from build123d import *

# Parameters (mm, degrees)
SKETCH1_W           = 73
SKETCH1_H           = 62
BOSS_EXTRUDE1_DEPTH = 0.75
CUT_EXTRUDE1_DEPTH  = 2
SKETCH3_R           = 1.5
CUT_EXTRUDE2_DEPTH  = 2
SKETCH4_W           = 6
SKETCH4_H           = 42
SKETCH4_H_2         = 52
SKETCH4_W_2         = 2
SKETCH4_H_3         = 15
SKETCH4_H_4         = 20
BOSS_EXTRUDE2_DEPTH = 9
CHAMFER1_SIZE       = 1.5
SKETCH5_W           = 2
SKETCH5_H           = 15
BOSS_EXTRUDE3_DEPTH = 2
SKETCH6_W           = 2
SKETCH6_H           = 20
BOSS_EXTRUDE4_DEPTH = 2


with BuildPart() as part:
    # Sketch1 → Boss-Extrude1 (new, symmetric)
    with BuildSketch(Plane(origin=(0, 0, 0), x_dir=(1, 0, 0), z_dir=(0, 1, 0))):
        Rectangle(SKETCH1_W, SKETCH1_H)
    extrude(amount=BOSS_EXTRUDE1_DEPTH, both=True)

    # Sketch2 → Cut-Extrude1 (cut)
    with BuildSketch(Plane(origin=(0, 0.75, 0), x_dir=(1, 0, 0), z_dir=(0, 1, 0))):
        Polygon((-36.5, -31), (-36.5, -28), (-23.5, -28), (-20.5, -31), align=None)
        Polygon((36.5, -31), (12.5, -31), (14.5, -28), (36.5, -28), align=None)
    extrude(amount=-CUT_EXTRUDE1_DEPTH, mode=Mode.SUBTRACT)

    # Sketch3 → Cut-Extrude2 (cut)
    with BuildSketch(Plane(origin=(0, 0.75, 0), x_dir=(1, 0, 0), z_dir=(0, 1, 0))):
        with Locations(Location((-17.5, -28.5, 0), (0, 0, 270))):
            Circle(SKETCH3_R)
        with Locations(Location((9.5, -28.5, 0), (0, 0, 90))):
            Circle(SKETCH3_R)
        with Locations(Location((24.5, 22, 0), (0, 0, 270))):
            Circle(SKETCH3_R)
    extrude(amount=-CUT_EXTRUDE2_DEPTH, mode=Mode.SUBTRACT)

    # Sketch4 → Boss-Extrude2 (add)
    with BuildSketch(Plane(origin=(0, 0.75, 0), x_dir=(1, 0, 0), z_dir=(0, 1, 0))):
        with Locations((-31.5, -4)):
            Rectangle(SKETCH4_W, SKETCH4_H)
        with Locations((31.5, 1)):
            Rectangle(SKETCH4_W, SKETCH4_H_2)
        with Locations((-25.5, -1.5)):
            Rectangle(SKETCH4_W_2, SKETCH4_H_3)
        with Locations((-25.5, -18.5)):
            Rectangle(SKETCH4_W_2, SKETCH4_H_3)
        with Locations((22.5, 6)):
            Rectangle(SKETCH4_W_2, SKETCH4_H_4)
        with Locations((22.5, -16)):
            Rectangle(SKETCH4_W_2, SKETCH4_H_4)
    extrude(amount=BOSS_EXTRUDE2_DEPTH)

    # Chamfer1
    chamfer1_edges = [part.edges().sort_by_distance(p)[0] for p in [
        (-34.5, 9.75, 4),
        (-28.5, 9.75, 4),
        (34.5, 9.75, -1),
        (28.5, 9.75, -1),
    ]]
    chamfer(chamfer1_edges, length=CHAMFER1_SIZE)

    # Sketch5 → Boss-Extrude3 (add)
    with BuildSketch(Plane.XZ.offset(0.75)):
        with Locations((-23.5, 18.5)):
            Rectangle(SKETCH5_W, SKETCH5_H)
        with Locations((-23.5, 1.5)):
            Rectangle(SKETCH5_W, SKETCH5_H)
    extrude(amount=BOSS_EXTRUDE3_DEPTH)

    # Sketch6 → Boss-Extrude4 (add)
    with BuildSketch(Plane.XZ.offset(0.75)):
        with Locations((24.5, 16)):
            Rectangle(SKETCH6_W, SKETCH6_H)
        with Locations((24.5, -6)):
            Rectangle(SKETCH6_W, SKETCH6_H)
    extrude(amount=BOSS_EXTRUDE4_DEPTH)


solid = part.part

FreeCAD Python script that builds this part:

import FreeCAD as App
import Part
import Sketcher
from FreeCAD import Vector


def edges_at(feature, points):
    """Names of the edges that pass closest to the given points."""
    edges = feature.Shape.Edges
    near = lambda p: min(range(len(edges)), key=lambda i: edges[i].distToShape(Part.Vertex(*p))[0])
    return sorted({f"Edge{near(p) + 1}" for p in points})

doc = App.newDocument("Part")
body = doc.addObject("PartDesign::Body", "Body")

sketch1 = body.newObject("Sketcher::SketchObject", "Sketch")
sketch1.AttachmentSupport = (doc.getObject("XZ_Plane"), [""])
sketch1.MapMode = "FlatFace"
sketch1.addGeometry([
    Part.LineSegment(Vector(-36.5, -31, 0), Vector(-36.5, 31, 0)),
    Part.LineSegment(Vector(-36.5, 31, 0), Vector(36.5, 31, 0)),
    Part.LineSegment(Vector(36.5, 31, 0), Vector(36.5, -31, 0)),
    Part.LineSegment(Vector(36.5, -31, 0), Vector(-36.5, -31, 0)),
], False)
sketch1.addConstraint([
    Sketcher.Constraint("Coincident", 0, 2, 1, 1),
    Sketcher.Constraint("Coincident", 1, 2, 2, 1),
    Sketcher.Constraint("Coincident", 2, 2, 3, 1),
    Sketcher.Constraint("Coincident", 3, 2, 0, 1),
    Sketcher.Constraint("Vertical", 0),
    Sketcher.Constraint("Horizontal", 1),
    Sketcher.Constraint("Vertical", 2),
    Sketcher.Constraint("Horizontal", 3),
    Sketcher.Constraint("Symmetric", 0, 2, 2, 2, -1, 1),
    Sketcher.Constraint("DistanceX", 1, 1, 1, 2, 73.0),
    Sketcher.Constraint("DistanceY", 0, 1, 0, 2, 62.0),
])
pad1 = body.newObject("PartDesign::Pad", "Pad")
pad1.Profile = sketch1
pad1.Length = 1.5
pad1.Midplane = True

sketch2 = body.newObject("Sketcher::SketchObject", "Sketch001")
sketch2.AttachmentSupport = (doc.getObject("XZ_Plane"), [""])
sketch2.MapMode = "FlatFace"
sketch2.AttachmentOffset = App.Placement(Vector(0, 0, -0.75), App.Rotation())
sketch2.addGeometry([
    Part.LineSegment(Vector(-36.5, 28, 0), Vector(-36.5, 31, 0)),
    Part.LineSegment(Vector(-36.5, 31, 0), Vector(-20.5, 31, 0)),
    Part.LineSegment(Vector(-20.5, 31, 0), Vector(-23.5, 28, 0)),
    Part.LineSegment(Vector(-23.5, 28, 0), Vector(-36.5, 28, 0)),
    Part.LineSegment(Vector(12.5, 31, 0), Vector(36.5, 31, 0)),
    Part.LineSegment(Vector(36.5, 31, 0), Vector(36.5, 28, 0)),
    Part.LineSegment(Vector(36.5, 28, 0), Vector(14.5, 28, 0)),
    Part.LineSegment(Vector(14.5, 28, 0), Vector(12.5, 31, 0)),
], False)
sketch2.addConstraint([
    Sketcher.Constraint("Coincident", 0, 2, 1, 1),
    Sketcher.Constraint("Coincident", 1, 2, 2, 1),
    Sketcher.Constraint("Coincident", 2, 2, 3, 1),
    Sketcher.Constraint("Coincident", 3, 2, 0, 1),
    Sketcher.Constraint("Coincident", 4, 2, 5, 1),
    Sketcher.Constraint("Coincident", 5, 2, 6, 1),
    Sketcher.Constraint("Coincident", 6, 2, 7, 1),
    Sketcher.Constraint("Coincident", 7, 2, 4, 1),
    Sketcher.Constraint("Vertical", 0),
    Sketcher.Constraint("Horizontal", 1),
    Sketcher.Constraint("Horizontal", 3),
    Sketcher.Constraint("Horizontal", 4),
    Sketcher.Constraint("Vertical", 5),
    Sketcher.Constraint("Horizontal", 6),
    Sketcher.Constraint("Symmetric", 0, 2, 4, 2, -2),
    Sketcher.Constraint("Horizontal", 3, 2, 5, 2),
    Sketcher.Constraint("DistanceX", 1, 1, 1, 2, 16.0),
    Sketcher.Constraint("DistanceX", 3, 2, 3, 1, 13.0),
    Sketcher.Constraint("DistanceX", 4, 1, 4, 2, 24.0),
    Sketcher.Constraint("DistanceX", 6, 2, 6, 1, 22.0),
    Sketcher.Constraint("DistanceY", 0, 1, 0, 2, 3.0),
    Sketcher.Constraint("DistanceY", -1, 1, 0, 2, 31.0),
    Sketcher.Constraint("DistanceX", 1, 2, 4, 2, 57.0),
])
pocket1 = body.newObject("PartDesign::Pocket", "Pocket")
pocket1.Profile = sketch2
pocket1.Length = 2
pocket1.Reversed = True

sketch3 = body.newObject("Sketcher::SketchObject", "Sketch002")
sketch3.AttachmentSupport = (doc.getObject("XZ_Plane"), [""])
sketch3.MapMode = "FlatFace"
sketch3.AttachmentOffset = App.Placement(Vector(0, 0, -0.75), App.Rotation())
sketch3.addGeometry([
    Part.Circle(Vector(-17.5, 28.5, 0), Vector(0, 0, 1), 1.5),
    Part.Circle(Vector(9.5, 28.5, 0), Vector(0, 0, 1), 1.5),
    Part.Circle(Vector(24.5, -22, 0), Vector(0, 0, 1), 1.5),
], False)
sketch3.addConstraint([
    Sketcher.Constraint("Equal", 0, 1),
    Sketcher.Constraint("Equal", 1, 2),
    Sketcher.Constraint("Horizontal", 0, 3, 1, 3),
    Sketcher.Constraint("Diameter", 0, 3.0),
    Sketcher.Constraint("DistanceY", 2, 3, -1, 1, 22.0),
    Sketcher.Constraint("DistanceX", 0, 3, 1, 3, 27.0),
    Sketcher.Constraint("DistanceX", 1, 3, 2, 3, 15.0),
    Sketcher.Constraint("DistanceX", 0, 3, -1, 1, 17.5),
    Sketcher.Constraint("DistanceY", -1, 1, 0, 3, 28.5),
])
pocket2 = body.newObject("PartDesign::Pocket", "Pocket001")
pocket2.Profile = sketch3
pocket2.Length = 2
pocket2.Reversed = True

sketch4 = body.newObject("Sketcher::SketchObject", "Sketch003")
sketch4.AttachmentSupport = (doc.getObject("XZ_Plane"), [""])
sketch4.MapMode = "FlatFace"
sketch4.AttachmentOffset = App.Placement(Vector(0, 0, -0.75), App.Rotation())
sketch4.addGeometry([
    Part.LineSegment(Vector(-34.5, -17, 0), Vector(-34.5, 25, 0)),
    Part.LineSegment(Vector(-34.5, 25, 0), Vector(-28.5, 25, 0)),
    Part.LineSegment(Vector(-28.5, 25, 0), Vector(-28.5, -17, 0)),
    Part.LineSegment(Vector(-28.5, -17, 0), Vector(-34.5, -17, 0)),
    Part.LineSegment(Vector(28.5, -27, 0), Vector(28.5, 25, 0)),
    Part.LineSegment(Vector(28.5, 25, 0), Vector(34.5, 25, 0)),
    Part.LineSegment(Vector(34.5, 25, 0), Vector(34.5, -27, 0)),
    Part.LineSegment(Vector(34.5, -27, 0), Vector(28.5, -27, 0)),
    Part.LineSegment(Vector(-26.5, -6, 0), Vector(-26.5, 9, 0)),
    Part.LineSegment(Vector(-26.5, 9, 0), Vector(-24.5, 9, 0)),
    Part.LineSegment(Vector(-24.5, 9, 0), Vector(-24.5, -6, 0)),
    Part.LineSegment(Vector(-24.5, -6, 0), Vector(-26.5, -6, 0)),
    Part.LineSegment(Vector(-26.5, 11, 0), Vector(-26.5, 26, 0)),
    Part.LineSegment(Vector(-26.5, 26, 0), Vector(-24.5, 26, 0)),
    Part.LineSegment(Vector(-24.5, 26, 0), Vector(-24.5, 11, 0)),
    Part.LineSegment(Vector(-24.5, 11, 0), Vector(-26.5, 11, 0)),
    Part.LineSegment(Vector(21.5, -16, 0), Vector(21.5, 4, 0)),
    Part.LineSegment(Vector(21.5, 4, 0), Vector(23.5, 4, 0)),
    Part.LineSegment(Vector(23.5, 4, 0), Vector(23.5, -16, 0)),
    Part.LineSegment(Vector(23.5, -16, 0), Vector(21.5, -16, 0)),
    Part.LineSegment(Vector(21.5, 6, 0), Vector(21.5, 26, 0)),
    Part.LineSegment(Vector(21.5, 26, 0), Vector(23.5, 26, 0)),
    Part.LineSegment(Vector(23.5, 26, 0), Vector(23.5, 6, 0)),
    Part.LineSegment(Vector(23.5, 6, 0), Vector(21.5, 6, 0)),
], False)
sketch4.addConstraint([
    Sketcher.Constraint("Coincident", 0, 2, 1, 1),
    Sketcher.Constraint("Coincident", 1, 2, 2, 1),
    Sketcher.Constraint("Coincident", 2, 2, 3, 1),
    Sketcher.Constraint("Coincident", 3, 2, 0, 1),
    Sketcher.Constraint("Coincident", 4, 2, 5, 1),
    Sketcher.Constraint("Coincident", 5, 2, 6, 1),
    Sketcher.Constraint("Coincident", 6, 2, 7, 1),
    Sketcher.Constraint("Coincident", 7, 2, 4, 1),
    Sketcher.Constraint("Coincident", 8, 2, 9, 1),
    Sketcher.Constraint("Coincident", 9, 2, 10, 1),
    Sketcher.Constraint("Coincident", 10, 2, 11, 1),
    Sketcher.Constraint("Coincident", 11, 2, 8, 1),
    Sketcher.Constraint("Coincident", 12, 2, 13, 1),
    Sketcher.Constraint("Coincident", 13, 2, 14, 1),
    Sketcher.Constraint("Coincident", 14, 2, 15, 1),
    Sketcher.Constraint("Coincident", 15, 2, 12, 1),
    Sketcher.Constraint("Coincident", 16, 2, 17, 1),
    Sketcher.Constraint("Coincident", 17, 2, 18, 1),
    Sketcher.Constraint("Coincident", 18, 2, 19, 1),
    Sketcher.Constraint("Coincident", 19, 2, 16, 1),
    Sketcher.Constraint("Coincident", 20, 2, 21, 1),
    Sketcher.Constraint("Coincident", 21, 2, 22, 1),
    Sketcher.Constraint("Coincident", 22, 2, 23, 1),
    Sketcher.Constraint("Coincident", 23, 2, 20, 1),
    Sketcher.Constraint("Vertical", 0),
    Sketcher.Constraint("Horizontal", 1),
    Sketcher.Constraint("Vertical", 2),
    Sketcher.Constraint("Horizontal", 3),
    Sketcher.Constraint("Vertical", 4),
    Sketcher.Constraint("Horizontal", 5),
    Sketcher.Constraint("Vertical", 6),
    Sketcher.Constraint("Horizontal", 7),
    Sketcher.Constraint("Vertical", 8),
    Sketcher.Constraint("Horizontal", 9),
    Sketcher.Constraint("Vertical", 10),
    Sketcher.Constraint("Horizontal", 11),
    Sketcher.Constraint("Vertical", 12),
    Sketcher.Constraint("Horizontal", 13),
    Sketcher.Constraint("Vertical", 14),
    Sketcher.Constraint("Horizontal", 15),
    Sketcher.Constraint("Vertical", 16),
    Sketcher.Constraint("Horizontal", 17),
    Sketcher.Constraint("Vertical", 18),
    Sketcher.Constraint("Horizontal", 19),
    Sketcher.Constraint("Vertical", 20),
    Sketcher.Constraint("Horizontal", 21),
    Sketcher.Constraint("Vertical", 22),
    Sketcher.Constraint("Horizontal", 23),
    Sketcher.Constraint("Symmetric", 1, 2, 4, 2, -2),
    Sketcher.Constraint("Horizontal", 13, 2, 20, 2),
    Sketcher.Constraint("Vertical", 11, 2, 12, 2),
    Sketcher.Constraint("Vertical", 10, 2, 13, 2),
    Sketcher.Constraint("Vertical", 19, 2, 20, 2),
    Sketcher.Constraint("Vertical", 18, 2, 21, 2),
    Sketcher.Constraint("Equal", 3, 5),
    Sketcher.Constraint("Equal", 15, 17),
    Sketcher.Constraint("Equal", 10, 12),
    Sketcher.Constraint("Equal", 18, 20),
    Sketcher.Constraint("DistanceX", 1, 1, 1, 2, 6.0),
    Sketcher.Constraint("DistanceX", 9, 1, 9, 2, 2.0),
    Sketcher.Constraint("DistanceY", 0, 1, 0, 2, 42.0),
    Sketcher.Constraint("DistanceY", 4, 1, 4, 2, 52.0),
    Sketcher.Constraint("DistanceY", 8, 1, 8, 2, 15.0),
    Sketcher.Constraint("DistanceY", 16, 1, 16, 2, 20.0),
    Sketcher.Constraint("DistanceY", -1, 1, 0, 2, 25.0),
    Sketcher.Constraint("DistanceY", -1, 1, 8, 2, 9.0),
    Sketcher.Constraint("DistanceY", -1, 1, 12, 2, 26.0),
    Sketcher.Constraint("DistanceY", -1, 1, 16, 2, 4.0),
    Sketcher.Constraint("DistanceX", 1, 2, 4, 2, 57.0),
    Sketcher.Constraint("DistanceX", 1, 2, 8, 2, 2.0),
    Sketcher.Constraint("DistanceX", 16, 2, 4, 2, 7.0),
])
pad2 = body.newObject("PartDesign::Pad", "Pad001")
pad2.Profile = sketch4
pad2.Length = 9
pad2.Reversed = True
doc.recompute()

chamfer = body.newObject("PartDesign::Chamfer", "Chamfer")
chamfer.Base = (pad2, edges_at(pad2, [
    (-34.5, 9.75, 4),
    (-28.5, 9.75, 4),
    (34.5, 9.75, -1),
    (28.5, 9.75, -1),
]))
chamfer.Size = 1.5

sketch5 = body.newObject("Sketcher::SketchObject", "Sketch004")
sketch5.AttachmentSupport = (doc.getObject("XZ_Plane"), [""])
sketch5.MapMode = "FlatFace"
sketch5.AttachmentOffset = App.Placement(Vector(0, 0, 0.75), App.Rotation())
sketch5.addGeometry([
    Part.LineSegment(Vector(-24.5, 26, 0), Vector(-24.5, 11, 0)),
    Part.LineSegment(Vector(-24.5, 11, 0), Vector(-22.5, 11, 0)),
    Part.LineSegment(Vector(-22.5, 11, 0), Vector(-22.5, 26, 0)),
    Part.LineSegment(Vector(-22.5, 26, 0), Vector(-24.5, 26, 0)),
    Part.LineSegment(Vector(-24.5, 9, 0), Vector(-24.5, -6, 0)),
    Part.LineSegment(Vector(-24.5, -6, 0), Vector(-22.5, -6, 0)),
    Part.LineSegment(Vector(-22.5, -6, 0), Vector(-22.5, 9, 0)),
    Part.LineSegment(Vector(-22.5, 9, 0), Vector(-24.5, 9, 0)),
], False)
sketch5.addConstraint([
    Sketcher.Constraint("Coincident", 0, 2, 1, 1),
    Sketcher.Constraint("Coincident", 1, 2, 2, 1),
    Sketcher.Constraint("Coincident", 2, 2, 3, 1),
    Sketcher.Constraint("Coincident", 3, 2, 0, 1),
    Sketcher.Constraint("Coincident", 4, 2, 5, 1),
    Sketcher.Constraint("Coincident", 5, 2, 6, 1),
    Sketcher.Constraint("Coincident", 6, 2, 7, 1),
    Sketcher.Constraint("Coincident", 7, 2, 4, 1),
    Sketcher.Constraint("Vertical", 0),
    Sketcher.Constraint("Horizontal", 1),
    Sketcher.Constraint("Vertical", 2),
    Sketcher.Constraint("Horizontal", 3),
    Sketcher.Constraint("Vertical", 4),
    Sketcher.Constraint("Horizontal", 5),
    Sketcher.Constraint("Vertical", 6),
    Sketcher.Constraint("Horizontal", 7),
    Sketcher.Constraint("Vertical", 3, 2, 4, 2),
    Sketcher.Constraint("Vertical", 2, 2, 5, 2),
    Sketcher.Constraint("Equal", 2, 4),
    Sketcher.Constraint("DistanceX", 1, 1, 1, 2, 2.0),
    Sketcher.Constraint("DistanceY", 0, 2, 0, 1, 15.0),
    Sketcher.Constraint("DistanceY", -1, 1, 0, 2, 11.0),
    Sketcher.Constraint("DistanceY", 4, 2, -1, 1, 6.0),
    Sketcher.Constraint("DistanceX", 0, 2, -1, 1, 24.5),
])
pad3 = body.newObject("PartDesign::Pad", "Pad002")
pad3.Profile = sketch5
pad3.Length = 2

sketch6 = body.newObject("Sketcher::SketchObject", "Sketch005")
sketch6.AttachmentSupport = (doc.getObject("XZ_Plane"), [""])
sketch6.MapMode = "FlatFace"
sketch6.AttachmentOffset = App.Placement(Vector(0, 0, 0.75), App.Rotation())
sketch6.addGeometry([
    Part.LineSegment(Vector(23.5, 26, 0), Vector(23.5, 6, 0)),
    Part.LineSegment(Vector(23.5, 6, 0), Vector(25.5, 6, 0)),
    Part.LineSegment(Vector(25.5, 6, 0), Vector(25.5, 26, 0)),
    Part.LineSegment(Vector(25.5, 26, 0), Vector(23.5, 26, 0)),
    Part.LineSegment(Vector(23.5, 4, 0), Vector(23.5, -16, 0)),
    Part.LineSegment(Vector(23.5, -16, 0), Vector(25.5, -16, 0)),
    Part.LineSegment(Vector(25.5, -16, 0), Vector(25.5, 4, 0)),
    Part.LineSegment(Vector(25.5, 4, 0), Vector(23.5, 4, 0)),
], False)
sketch6.addConstraint([
    Sketcher.Constraint("Coincident", 0, 2, 1, 1),
    Sketcher.Constraint("Coincident", 1, 2, 2, 1),
    Sketcher.Constraint("Coincident", 2, 2, 3, 1),
    Sketcher.Constraint("Coincident", 3, 2, 0, 1),
    Sketcher.Constraint("Coincident", 4, 2, 5, 1),
    Sketcher.Constraint("Coincident", 5, 2, 6, 1),
    Sketcher.Constraint("Coincident", 6, 2, 7, 1),
    Sketcher.Constraint("Coincident", 7, 2, 4, 1),
    Sketcher.Constraint("Vertical", 0),
    Sketcher.Constraint("Horizontal", 1),
    Sketcher.Constraint("Vertical", 2),
    Sketcher.Constraint("Horizontal", 3),
    Sketcher.Constraint("Vertical", 4),
    Sketcher.Constraint("Horizontal", 5),
    Sketcher.Constraint("Vertical", 6),
    Sketcher.Constraint("Horizontal", 7),
    Sketcher.Constraint("Vertical", 3, 2, 4, 2),
    Sketcher.Constraint("Vertical", 2, 2, 5, 2),
    Sketcher.Constraint("Equal", 2, 4),
    Sketcher.Constraint("DistanceX", 1, 1, 1, 2, 2.0),
    Sketcher.Constraint("DistanceY", 0, 2, 0, 1, 20.0),
    Sketcher.Constraint("DistanceY", -1, 1, 0, 2, 6.0),
    Sketcher.Constraint("DistanceY", 4, 2, -1, 1, 16.0),
    Sketcher.Constraint("DistanceX", -1, 1, 0, 2, 23.5),
])
pad4 = body.newObject("PartDesign::Pad", "Pad003")
pad4.Profile = sketch6
pad4.Length = 2

doc.recompute()
